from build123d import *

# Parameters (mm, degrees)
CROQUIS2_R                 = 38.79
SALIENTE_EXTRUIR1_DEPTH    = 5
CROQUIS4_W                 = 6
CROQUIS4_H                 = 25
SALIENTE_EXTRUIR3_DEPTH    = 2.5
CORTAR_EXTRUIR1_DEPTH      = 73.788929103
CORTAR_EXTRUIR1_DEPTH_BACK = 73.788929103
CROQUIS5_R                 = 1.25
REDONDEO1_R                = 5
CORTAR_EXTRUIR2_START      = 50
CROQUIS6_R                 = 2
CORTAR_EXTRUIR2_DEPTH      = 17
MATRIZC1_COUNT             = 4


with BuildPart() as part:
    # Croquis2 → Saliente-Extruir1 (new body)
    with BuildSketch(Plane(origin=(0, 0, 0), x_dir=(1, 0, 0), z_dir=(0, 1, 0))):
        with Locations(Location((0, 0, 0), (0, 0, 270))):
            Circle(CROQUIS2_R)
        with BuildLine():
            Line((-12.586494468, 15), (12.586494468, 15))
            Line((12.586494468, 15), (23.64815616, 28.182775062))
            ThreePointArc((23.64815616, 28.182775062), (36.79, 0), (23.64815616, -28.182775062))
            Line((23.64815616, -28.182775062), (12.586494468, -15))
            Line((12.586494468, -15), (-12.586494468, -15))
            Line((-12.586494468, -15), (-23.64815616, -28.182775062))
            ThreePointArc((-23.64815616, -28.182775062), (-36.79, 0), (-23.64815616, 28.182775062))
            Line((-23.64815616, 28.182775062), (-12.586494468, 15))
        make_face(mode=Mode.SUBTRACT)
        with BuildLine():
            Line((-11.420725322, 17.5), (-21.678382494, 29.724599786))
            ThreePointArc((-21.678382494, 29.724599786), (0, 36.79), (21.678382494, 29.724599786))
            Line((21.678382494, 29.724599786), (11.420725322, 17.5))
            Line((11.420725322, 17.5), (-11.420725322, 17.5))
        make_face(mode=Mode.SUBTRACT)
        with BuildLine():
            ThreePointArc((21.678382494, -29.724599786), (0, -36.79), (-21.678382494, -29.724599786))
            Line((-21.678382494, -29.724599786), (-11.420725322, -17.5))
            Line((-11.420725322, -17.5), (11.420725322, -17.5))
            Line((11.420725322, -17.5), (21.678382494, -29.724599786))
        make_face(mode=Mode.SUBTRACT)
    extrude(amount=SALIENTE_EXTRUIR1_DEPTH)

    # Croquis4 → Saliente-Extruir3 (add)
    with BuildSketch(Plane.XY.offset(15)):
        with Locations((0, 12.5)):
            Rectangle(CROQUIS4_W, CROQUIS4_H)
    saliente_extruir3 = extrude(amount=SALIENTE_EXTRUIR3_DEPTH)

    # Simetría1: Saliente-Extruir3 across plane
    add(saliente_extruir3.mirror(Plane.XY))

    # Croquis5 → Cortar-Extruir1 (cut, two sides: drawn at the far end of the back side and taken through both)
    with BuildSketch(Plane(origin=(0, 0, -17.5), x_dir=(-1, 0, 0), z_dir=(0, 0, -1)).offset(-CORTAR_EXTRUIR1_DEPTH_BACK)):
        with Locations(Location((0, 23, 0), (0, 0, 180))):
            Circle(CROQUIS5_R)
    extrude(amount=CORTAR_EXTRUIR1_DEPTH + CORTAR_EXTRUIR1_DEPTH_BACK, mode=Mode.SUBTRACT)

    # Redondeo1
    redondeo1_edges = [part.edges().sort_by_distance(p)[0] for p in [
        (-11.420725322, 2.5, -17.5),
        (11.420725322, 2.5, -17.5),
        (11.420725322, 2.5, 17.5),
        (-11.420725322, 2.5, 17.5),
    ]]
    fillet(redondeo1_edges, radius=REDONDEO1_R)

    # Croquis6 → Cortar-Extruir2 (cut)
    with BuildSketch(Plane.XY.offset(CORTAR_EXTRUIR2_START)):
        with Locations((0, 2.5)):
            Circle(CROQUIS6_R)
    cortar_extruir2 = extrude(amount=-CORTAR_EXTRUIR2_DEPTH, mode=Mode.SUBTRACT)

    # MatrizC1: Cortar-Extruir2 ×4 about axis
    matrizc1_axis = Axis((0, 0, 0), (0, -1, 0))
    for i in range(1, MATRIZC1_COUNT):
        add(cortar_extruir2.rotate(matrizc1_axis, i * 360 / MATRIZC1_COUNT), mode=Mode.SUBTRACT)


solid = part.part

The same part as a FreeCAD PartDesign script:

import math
import FreeCAD as App
import Part
import Sketcher

V = App.Vector
Q = App.Units.Quantity


def edges_at(feature, points):
    """Names of the edges that pass closest to the given points."""
    edges = feature.Shape.Edges
    near = lambda p: min(range(len(edges)), key=lambda i: edges[i].distToShape(Part.Vertex(*p))[0])
    return sorted({f"Edge{near(p) + 1}" for p in points})

doc = App.newDocument("Part")
body = doc.addObject("PartDesign::Body", "Body")

sketch1 = body.newObject("Sketcher::SketchObject", "Sketch")
sketch1.AttachmentSupport = (doc.getObject("XZ_Plane"), [""])
sketch1.MapMode = "FlatFace"
sketch1.addGeometry([
    Part.Circle(V(0, 0, 0), V(0, 0, 1), 39),
    Part.LineSegment(V(11, -18, 0), V(-11, -18, 0)),
    Part.LineSegment(V(-11, -18, 0), V(-22, -30, 0)),
    Part.ArcOfCircle(Part.Circle(V(0, 0, 0), V(0, 0, 1), 37), math.radians(-126), math.radians(-54)),
    Part.LineSegment(V(22, -30, 0), V(11, -18, 0)),
    Part.LineSegment(V(-24, -28, 0), V(-13, -15, 0)),
    Part.LineSegment(V(-13, -15, 0), V(13, -15, 0)),
    Part.LineSegment(V(13, -15, 0), V(24, -28, 0)),
    Part.ArcOfCircle(Part.Circle(V(0, 0, 0), V(0, 0, 1), 37), math.radians(-50), math.radians(50)),
    Part.LineSegment(V(24, 28, 0), V(13, 15, 0)),
    Part.LineSegment(V(13, 15, 0), V(-13, 15, 0)),
    Part.LineSegment(V(-13, 15, 0), V(-24, 28, 0)),
    Part.ArcOfCircle(Part.Circle(V(0, 0, 0), V(0, 0, 1), 37), math.radians(130), math.radians(230)),
    Part.LineSegment(V(11, 18, 0), V(22, 30, 0)),
    Part.ArcOfCircle(Part.Circle(V(0, 0, 0), V(0, 0, 1), 37), math.radians(54), math.radians(126)),
    Part.LineSegment(V(-22, 30, 0), V(-11, 18, 0)),
    Part.LineSegment(V(-11, 18, 0), V(11, 18, 0)),
], False)
sketch1.addConstraint([
    Sketcher.Constraint("Coincident", 1, 2, 2, 1),
    Sketcher.Constraint("Coincident", 2, 2, 3, 1),
    Sketcher.Constraint("Coincident", 3, 2, 4, 1),
    Sketcher.Constraint("Coincident", 4, 2, 1, 1),
    Sketcher.Constraint("Coincident", 5, 2, 6, 1),
    Sketcher.Constraint("Coincident", 6, 2, 7, 1),
    Sketcher.Constraint("Coincident", 7, 2, 8, 1),
    Sketcher.Constraint("Coincident", 8, 2, 9, 1),
    Sketcher.Constraint("Coincident", 9, 2, 10, 1),
    Sketcher.Constraint("Coincident", 10, 2, 11, 1),
    Sketcher.Constraint("Coincident", 11, 2, 12, 1),
    Sketcher.Constraint("Coincident", 12, 2, 5, 1),
    Sketcher.Constraint("Coincident", 13, 2, 14, 1),
    Sketcher.Constraint("Coincident", 14, 2, 15, 1),
    Sketcher.Constraint("Coincident", 15, 2, 16, 1),
    Sketcher.Constraint("Coincident", 16, 2, 13, 1),
    Sketcher.Constraint("Horizontal", 1),
    Sketcher.Constraint("Horizontal", 6),
    Sketcher.Constraint("Horizontal", 10),
    Sketcher.Constraint("Horizontal", 16),
    Sketcher.Constraint("Coincident", 0, 3, -1, 1),
    Sketcher.Constraint("Coincident", 3, 3, -1, 1),
    Sketcher.Constraint("Coincident", 8, 3, -1, 1),
    Sketcher.Constraint("Coincident", 12, 3, -1, 1),
    Sketcher.Constraint("Coincident", 14, 3, -1, 1),
    Sketcher.Constraint("Equal", 3, 8),
    Sketcher.Constraint("Equal", 8, 12),
    Sketcher.Constraint("Equal", 12, 14),
    Sketcher.Constraint("Symmetric", 5, 2, 9, 2, -1, 1),
    Sketcher.Constraint("Symmetric", 4, 2, 15, 2, -1, 1),
    Sketcher.Constraint("Parallel", 2, 5),
    Sketcher.Constraint("Parallel", 4, 7),
    Sketcher.Constraint("Parallel", 5, 9),
    Sketcher.Constraint("Parallel", 7, 11),
    Sketcher.Constraint("Parallel", 9, 13),
    Sketcher.Constraint("Parallel", 11, 15),
    Sketcher.Constraint("Horizontal", 2, 2, 3, 2),
    Sketcher.Constraint("Horizontal", 8, 2, 11, 2),
    Sketcher.Constraint("Horizontal", 7, 2, 12, 2),
    Sketcher.Constraint("Horizontal", 13, 2, 14, 2),
    Sketcher.Constraint("Vertical", 6, 2, 9, 2),
    Sketcher.Constraint("Diameter", 0, Q("77.58 mm")),
    Sketcher.Constraint("Angle", 2, Q("-130 deg")),
    Sketcher.Constraint("Radius", 3, Q("36.79 mm")),
    Sketcher.Constraint("DistanceY", 5, 2, -1, 1, Q("15 mm")),
    Sketcher.Constraint("DistanceY", 1, 2, -1, 1, Q("17.5 mm")),
    Sketcher.Constraint("DistanceX", 1, 2, 1, 1, Q("22.841451 mm")),
    Sketcher.Constraint("DistanceX", 6, 1, 6, 2, Q("25.172989 mm")),
])
pad1 = body.newObject("PartDesign::Pad", "Pad")
pad1.Profile = sketch1
pad1.Length = 5
pad1.Reversed = True

sketch2 = body.newObject("Sketcher::SketchObject", "Sketch001")
sketch2.AttachmentSupport = (doc.getObject("XY_Plane"), [""])
sketch2.MapMode = "FlatFace"
sketch2.AttachmentOffset = App.Placement(V(0, 0, 15), App.Rotation())
sketch2.addGeometry([
    Part.LineSegment(V(-3, 25, 0), V(-3, 0, 0)),
    Part.LineSegment(V(-3, 0, 0), V(3, 0, 0)),
    Part.LineSegment(V(3, 0, 0), V(3, 25, 0)),
    Part.LineSegment(V(3, 25, 0), V(-3, 25, 0)),
], False)
sketch2.addConstraint([
    Sketcher.Constraint("Coincident", 0, 2, 1, 1),
    Sketcher.Constraint("Coincident", 1, 2, 2, 1),
    Sketcher.Constraint("Coincident", 2, 2, 3, 1),
    Sketcher.Constraint("Coincident", 3, 2, 0, 1),
    Sketcher.Constraint("Vertical", 0),
    Sketcher.Constraint("Horizontal", 1),
    Sketcher.Constraint("Vertical", 2),
    Sketcher.Constraint("Horizontal", 3),
    Sketcher.Constraint("Symmetric", 0, 2, 1, 2, -1, 1),
    Sketcher.Constraint("DistanceX", 1, 1, 1, 2, Q("6 mm")),
    Sketcher.Constraint("DistanceY", 0, 2, 0, 1, Q("25 mm")),
])
pad2 = body.newObject("PartDesign::Pad", "Pad001")
pad2.Profile = sketch2
pad2.Length = 2.5
doc.recompute()

mirrored = body.newObject("PartDesign::Mirrored", "Mirrored")
mirrored.Originals = [pad2]
mirrored.MirrorPlane = (doc.getObject("XY_Plane"), [""])
body.Tip = mirrored

sketch3 = body.newObject("Sketcher::SketchObject", "Sketch002")
sketch3.AttachmentSupport = (doc.getObject("XY_Plane"), [""])
sketch3.MapMode = "FlatFace"
sketch3.AttachmentOffset = App.Placement(V(0, 0, -17.5), App.Rotation())
sketch3.addGeometry(Part.Circle(V(0, 23, 0), V(0, 0, 1), 1.2), False)
sketch3.addConstraint([
    Sketcher.Constraint("PointOnObject", 0, 3, -2),
    Sketcher.Constraint("Diameter", 0, Q("2.5 mm")),
    Sketcher.Constraint("DistanceY", -1, 1, 0, 3, Q("23 mm")),
])
pocket1 = body.newObject("PartDesign::Pocket", "Pocket")
pocket1.Profile = sketch3
pocket1.Type = "ThroughAll"
pocket1.Midplane = True
doc.recompute()

fillet = body.newObject("PartDesign::Fillet", "Fillet")
fillet.Base = (pocket1, edges_at(pocket1, [
    (-11.421, 2.5, -17.5),
    (11.421, 2.5, -17.5),
    (11.421, 2.5, 17.5),
    (-11.421, 2.5, 17.5),
]))
fillet.Radius = 5

sketch4 = body.newObject("Sketcher::SketchObject", "Sketch003")
sketch4.AttachmentSupport = (doc.getObject("XY_Plane"), [""])
sketch4.MapMode = "FlatFace"
sketch4.AttachmentOffset = App.Placement(V(0, 0, 50), App.Rotation())
sketch4.addGeometry(Part.Circle(V(0, 2.5, 0), V(0, 0, 1), 2), False)
sketch4.addConstraint([
    Sketcher.Constraint("PointOnObject", 0, 3, -2),
    Sketcher.Constraint("Diameter", 0, Q("4 mm")),
    Sketcher.Constraint("DistanceY", -1, 1, 0, 3, Q("2.5 mm")),
])
pocket2 = body.newObject("PartDesign::Pocket", "Pocket001")
pocket2.Profile = sketch4
pocket2.Length = 17
doc.recompute()

polarpattern = body.newObject("PartDesign::PolarPattern", "PolarPattern")
polarpattern.Originals = [pocket2]
polarpattern.Axis = (doc.getObject("Y_Axis"), [""])
polarpattern.Angle = 360
polarpattern.Occurrences = 4
body.Tip = polarpattern

doc.recompute()
